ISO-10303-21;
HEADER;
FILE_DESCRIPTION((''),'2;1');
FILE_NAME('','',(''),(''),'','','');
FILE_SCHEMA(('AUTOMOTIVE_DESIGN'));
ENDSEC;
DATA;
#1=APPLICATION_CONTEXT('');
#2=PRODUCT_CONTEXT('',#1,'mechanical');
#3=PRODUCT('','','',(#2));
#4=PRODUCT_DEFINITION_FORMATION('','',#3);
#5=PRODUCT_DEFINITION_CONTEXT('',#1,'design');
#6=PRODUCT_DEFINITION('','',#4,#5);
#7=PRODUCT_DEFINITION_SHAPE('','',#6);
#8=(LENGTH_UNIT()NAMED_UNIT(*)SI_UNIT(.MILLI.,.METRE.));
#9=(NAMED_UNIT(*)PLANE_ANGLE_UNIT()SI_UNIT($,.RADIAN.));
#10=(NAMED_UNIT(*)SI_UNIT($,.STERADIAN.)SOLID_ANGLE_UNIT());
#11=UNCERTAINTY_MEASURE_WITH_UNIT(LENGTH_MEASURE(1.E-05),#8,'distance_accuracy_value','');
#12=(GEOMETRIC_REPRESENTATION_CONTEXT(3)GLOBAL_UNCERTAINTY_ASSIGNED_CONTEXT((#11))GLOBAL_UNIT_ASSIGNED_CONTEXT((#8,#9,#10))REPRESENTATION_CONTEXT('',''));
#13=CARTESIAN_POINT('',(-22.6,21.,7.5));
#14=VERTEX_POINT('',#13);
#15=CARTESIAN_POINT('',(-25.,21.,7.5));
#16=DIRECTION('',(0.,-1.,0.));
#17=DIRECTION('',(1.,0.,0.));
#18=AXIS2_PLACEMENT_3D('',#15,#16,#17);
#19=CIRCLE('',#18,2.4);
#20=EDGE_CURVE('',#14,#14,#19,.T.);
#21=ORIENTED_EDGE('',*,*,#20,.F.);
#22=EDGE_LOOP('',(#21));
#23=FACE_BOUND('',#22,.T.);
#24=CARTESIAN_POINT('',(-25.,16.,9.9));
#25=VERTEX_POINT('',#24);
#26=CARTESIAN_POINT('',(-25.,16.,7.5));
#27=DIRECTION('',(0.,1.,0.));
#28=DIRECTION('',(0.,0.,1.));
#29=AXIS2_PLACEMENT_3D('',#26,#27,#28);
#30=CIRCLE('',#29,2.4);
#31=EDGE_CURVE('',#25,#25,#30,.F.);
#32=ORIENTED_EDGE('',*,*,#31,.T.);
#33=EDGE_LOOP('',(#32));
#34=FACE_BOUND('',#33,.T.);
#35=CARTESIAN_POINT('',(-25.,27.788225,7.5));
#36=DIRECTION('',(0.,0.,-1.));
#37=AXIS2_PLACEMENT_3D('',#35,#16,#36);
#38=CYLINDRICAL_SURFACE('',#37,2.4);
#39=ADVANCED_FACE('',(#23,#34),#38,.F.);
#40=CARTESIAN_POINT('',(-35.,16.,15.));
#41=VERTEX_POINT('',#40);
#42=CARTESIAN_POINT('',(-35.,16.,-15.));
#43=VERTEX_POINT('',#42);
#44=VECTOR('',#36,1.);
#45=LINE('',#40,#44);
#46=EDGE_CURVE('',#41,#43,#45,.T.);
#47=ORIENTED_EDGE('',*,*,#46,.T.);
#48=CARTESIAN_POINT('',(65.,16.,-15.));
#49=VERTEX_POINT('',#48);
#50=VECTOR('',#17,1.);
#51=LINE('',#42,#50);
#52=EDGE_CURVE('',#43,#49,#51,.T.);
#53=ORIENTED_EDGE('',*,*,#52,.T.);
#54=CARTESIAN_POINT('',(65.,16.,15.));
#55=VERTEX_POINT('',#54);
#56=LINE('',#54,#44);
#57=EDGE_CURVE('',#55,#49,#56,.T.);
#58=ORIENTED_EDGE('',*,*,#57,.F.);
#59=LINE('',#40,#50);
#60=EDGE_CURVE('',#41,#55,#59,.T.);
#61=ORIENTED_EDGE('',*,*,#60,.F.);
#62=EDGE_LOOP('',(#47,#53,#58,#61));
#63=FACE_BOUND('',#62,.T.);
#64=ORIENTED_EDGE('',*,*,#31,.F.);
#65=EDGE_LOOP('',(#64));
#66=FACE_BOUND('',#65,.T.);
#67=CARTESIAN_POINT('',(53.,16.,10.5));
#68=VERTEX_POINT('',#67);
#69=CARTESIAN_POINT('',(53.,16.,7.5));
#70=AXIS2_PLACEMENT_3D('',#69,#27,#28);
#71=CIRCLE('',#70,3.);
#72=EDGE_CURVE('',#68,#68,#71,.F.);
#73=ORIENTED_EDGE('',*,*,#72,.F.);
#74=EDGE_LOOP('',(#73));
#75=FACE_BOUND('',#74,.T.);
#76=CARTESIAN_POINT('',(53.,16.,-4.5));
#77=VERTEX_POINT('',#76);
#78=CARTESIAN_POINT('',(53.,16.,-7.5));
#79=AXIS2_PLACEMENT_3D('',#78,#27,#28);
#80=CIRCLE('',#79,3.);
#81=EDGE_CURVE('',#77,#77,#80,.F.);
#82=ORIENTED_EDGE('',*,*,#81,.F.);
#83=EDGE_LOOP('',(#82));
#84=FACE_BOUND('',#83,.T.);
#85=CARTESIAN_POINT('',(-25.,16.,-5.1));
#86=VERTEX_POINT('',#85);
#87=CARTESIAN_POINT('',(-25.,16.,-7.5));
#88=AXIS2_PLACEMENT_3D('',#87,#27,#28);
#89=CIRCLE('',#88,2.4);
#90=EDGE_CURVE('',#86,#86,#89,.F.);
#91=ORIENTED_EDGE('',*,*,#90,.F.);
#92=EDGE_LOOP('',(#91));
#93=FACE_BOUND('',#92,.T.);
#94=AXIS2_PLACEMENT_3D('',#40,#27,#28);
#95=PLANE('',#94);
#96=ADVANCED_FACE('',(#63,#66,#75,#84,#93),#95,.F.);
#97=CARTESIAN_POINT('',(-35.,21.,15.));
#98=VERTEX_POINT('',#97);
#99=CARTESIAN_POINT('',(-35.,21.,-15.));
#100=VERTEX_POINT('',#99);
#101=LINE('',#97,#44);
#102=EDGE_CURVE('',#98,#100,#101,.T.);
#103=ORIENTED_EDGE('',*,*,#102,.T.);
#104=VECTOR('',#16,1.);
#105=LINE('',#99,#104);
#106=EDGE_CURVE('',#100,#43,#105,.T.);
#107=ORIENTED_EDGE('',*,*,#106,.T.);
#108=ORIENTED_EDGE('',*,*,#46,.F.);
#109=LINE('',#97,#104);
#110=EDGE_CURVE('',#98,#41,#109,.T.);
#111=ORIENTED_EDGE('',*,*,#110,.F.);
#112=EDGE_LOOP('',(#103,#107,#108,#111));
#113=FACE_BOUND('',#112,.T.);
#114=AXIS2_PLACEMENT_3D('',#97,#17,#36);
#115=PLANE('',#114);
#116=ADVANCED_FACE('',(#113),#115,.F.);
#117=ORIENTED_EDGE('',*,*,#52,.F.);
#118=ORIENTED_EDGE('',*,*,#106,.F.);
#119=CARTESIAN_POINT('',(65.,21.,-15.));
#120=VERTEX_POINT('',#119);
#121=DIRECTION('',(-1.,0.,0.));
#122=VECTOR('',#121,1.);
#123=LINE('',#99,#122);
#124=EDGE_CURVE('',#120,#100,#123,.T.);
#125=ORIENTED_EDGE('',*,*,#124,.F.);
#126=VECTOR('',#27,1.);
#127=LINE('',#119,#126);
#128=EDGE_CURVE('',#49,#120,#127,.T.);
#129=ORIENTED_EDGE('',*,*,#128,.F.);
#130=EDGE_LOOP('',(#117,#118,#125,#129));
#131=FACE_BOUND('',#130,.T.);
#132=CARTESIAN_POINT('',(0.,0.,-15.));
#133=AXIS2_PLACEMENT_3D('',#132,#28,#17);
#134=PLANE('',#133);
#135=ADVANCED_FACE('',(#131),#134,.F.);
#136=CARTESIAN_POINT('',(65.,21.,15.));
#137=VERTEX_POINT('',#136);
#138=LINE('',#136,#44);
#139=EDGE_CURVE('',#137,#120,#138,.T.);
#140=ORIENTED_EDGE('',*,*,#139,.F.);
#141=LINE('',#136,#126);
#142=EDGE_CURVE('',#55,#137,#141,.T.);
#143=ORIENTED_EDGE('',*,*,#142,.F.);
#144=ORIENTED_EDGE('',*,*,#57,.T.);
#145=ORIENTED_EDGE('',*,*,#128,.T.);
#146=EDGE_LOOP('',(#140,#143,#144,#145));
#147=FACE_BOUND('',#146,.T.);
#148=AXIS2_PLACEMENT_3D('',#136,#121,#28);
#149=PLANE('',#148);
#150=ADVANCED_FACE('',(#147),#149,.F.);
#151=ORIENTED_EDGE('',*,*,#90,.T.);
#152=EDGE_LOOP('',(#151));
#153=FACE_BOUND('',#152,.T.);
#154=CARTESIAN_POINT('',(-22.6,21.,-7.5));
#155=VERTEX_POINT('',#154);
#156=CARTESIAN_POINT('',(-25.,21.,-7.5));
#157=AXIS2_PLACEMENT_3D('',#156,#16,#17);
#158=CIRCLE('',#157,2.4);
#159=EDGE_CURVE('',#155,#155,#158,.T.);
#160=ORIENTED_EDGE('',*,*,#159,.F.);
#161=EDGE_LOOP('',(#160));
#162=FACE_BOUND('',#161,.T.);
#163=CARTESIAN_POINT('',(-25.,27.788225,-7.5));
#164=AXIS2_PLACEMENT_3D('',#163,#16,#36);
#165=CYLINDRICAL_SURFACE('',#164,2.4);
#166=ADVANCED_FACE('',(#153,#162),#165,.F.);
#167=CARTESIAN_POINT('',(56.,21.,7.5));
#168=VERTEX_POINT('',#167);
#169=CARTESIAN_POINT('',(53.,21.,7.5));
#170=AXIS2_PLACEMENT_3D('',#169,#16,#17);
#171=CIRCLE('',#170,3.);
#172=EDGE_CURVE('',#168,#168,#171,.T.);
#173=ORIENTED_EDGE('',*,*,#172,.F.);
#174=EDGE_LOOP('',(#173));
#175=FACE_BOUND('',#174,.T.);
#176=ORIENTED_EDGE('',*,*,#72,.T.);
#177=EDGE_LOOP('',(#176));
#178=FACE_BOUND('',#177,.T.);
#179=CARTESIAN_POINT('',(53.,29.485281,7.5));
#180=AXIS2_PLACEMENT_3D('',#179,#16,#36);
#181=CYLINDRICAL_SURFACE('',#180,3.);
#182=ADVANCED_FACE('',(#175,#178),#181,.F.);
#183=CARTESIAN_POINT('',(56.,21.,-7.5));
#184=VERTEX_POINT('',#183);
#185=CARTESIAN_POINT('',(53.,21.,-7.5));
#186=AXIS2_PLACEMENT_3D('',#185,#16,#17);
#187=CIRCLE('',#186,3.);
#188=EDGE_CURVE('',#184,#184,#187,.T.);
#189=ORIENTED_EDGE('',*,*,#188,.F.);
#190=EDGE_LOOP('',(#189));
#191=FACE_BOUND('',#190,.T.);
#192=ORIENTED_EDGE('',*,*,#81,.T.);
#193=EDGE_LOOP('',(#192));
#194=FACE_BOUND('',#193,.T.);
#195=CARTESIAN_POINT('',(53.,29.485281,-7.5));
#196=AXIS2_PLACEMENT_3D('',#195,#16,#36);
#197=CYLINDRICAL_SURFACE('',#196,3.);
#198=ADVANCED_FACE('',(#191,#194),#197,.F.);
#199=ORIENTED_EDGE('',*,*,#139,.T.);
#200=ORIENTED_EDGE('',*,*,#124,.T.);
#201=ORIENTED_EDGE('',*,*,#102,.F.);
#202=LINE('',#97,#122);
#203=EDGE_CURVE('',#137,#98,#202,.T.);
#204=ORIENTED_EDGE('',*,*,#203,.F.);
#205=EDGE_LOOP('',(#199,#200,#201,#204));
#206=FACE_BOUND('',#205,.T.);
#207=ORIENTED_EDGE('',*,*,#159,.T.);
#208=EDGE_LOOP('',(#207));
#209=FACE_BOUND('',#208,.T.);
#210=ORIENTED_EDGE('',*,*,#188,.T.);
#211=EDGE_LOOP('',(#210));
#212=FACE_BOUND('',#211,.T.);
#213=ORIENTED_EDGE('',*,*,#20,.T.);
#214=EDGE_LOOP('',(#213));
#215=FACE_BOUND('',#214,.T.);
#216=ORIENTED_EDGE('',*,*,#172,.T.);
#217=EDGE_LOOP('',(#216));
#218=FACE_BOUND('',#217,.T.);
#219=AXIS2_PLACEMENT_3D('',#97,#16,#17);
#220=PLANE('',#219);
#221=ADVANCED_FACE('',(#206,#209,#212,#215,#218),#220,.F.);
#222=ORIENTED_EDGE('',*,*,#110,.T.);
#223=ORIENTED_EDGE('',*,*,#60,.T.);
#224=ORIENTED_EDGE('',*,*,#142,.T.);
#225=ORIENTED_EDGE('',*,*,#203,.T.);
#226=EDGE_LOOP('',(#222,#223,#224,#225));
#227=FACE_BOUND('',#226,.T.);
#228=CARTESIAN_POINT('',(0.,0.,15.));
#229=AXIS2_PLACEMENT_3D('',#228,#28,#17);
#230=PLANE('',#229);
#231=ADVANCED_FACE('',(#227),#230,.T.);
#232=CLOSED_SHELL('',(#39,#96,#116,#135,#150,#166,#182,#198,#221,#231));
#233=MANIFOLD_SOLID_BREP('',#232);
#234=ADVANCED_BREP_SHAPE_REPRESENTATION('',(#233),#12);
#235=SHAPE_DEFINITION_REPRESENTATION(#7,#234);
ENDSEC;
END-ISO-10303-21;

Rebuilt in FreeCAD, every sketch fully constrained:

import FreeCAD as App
import Part
import Sketcher
from FreeCAD import Vector


def add_polygon(sketch, points):
    """Adds a closed chain of lines whose ends are joined by coincident constraints."""
    first, n = sketch.GeometryCount, len(points)
    for a, b in zip(points, points[1:] + points[:1]):
        sketch.addGeometry(Part.LineSegment(App.Vector(*a, 0), App.Vector(*b, 0)), False)
    for i in range(n):
        sketch.addConstraint(Sketcher.Constraint("Coincident", first + i, 2, first + (i + 1) % n, 1))

doc = App.newDocument("Part")
params = doc.addObject("Spreadsheet::Sheet", "Params")
for row, (alias, value) in enumerate([
    ("sketch1_width", "100 mm"),
    ("sketch1_height", "5 mm"),
    ("pad1_length", "15 mm"),
    ("pad1_length2", "15 mm"),
    ("sketch2_diameter", "6 mm"),
    ("pocket1_length", "21 mm"),
    ("sketch3_diameter", "4.8 mm"),
    ("pocket2_length", "21 mm"),
], start=1):
    params.set(f"A{row}", alias)
    params.set(f"B{row}", "=" + value)
    params.setAlias(f"B{row}", alias)

body = doc.addObject("PartDesign::Body", "Body")

# Sketch on XY plane
sketch1 = body.newObject("Sketcher::SketchObject", "Sketch")
sketch1.AttachmentSupport = (doc.getObject("XY_Plane"), [""])
sketch1.MapMode = "FlatFace"
add_polygon(sketch1, [(-35, 21), (-35, 16), (65, 16), (65, 21)])  # lines 0-3
sketch1.addConstraint(Sketcher.Constraint("Vertical", 0))
sketch1.addConstraint(Sketcher.Constraint("Horizontal", 1))
sketch1.addConstraint(Sketcher.Constraint("Vertical", 2))
sketch1.addConstraint(Sketcher.Constraint("Horizontal", 3))
sketch1.addConstraint(Sketcher.Constraint("DistanceX", 1, 1, 1, 2, 100.0))
sketch1.addConstraint(Sketcher.Constraint("DistanceY", 0, 2, 0, 1, 5.0))
sketch1.addConstraint(Sketcher.Constraint("DistanceX", 0, 2, -1, 1, 35.0))
sketch1.addConstraint(Sketcher.Constraint("DistanceY", -1, 1, 0, 2, 16.0))
sketch1.setExpression("Constraints[8]", "Params.sketch1_width")
sketch1.setExpression("Constraints[9]", "Params.sketch1_height")
pad1 = body.newObject("PartDesign::Pad", "Pad")
pad1.Profile = sketch1
pad1.Type = "TwoLengths"
pad1.setExpression("Length", "Params.pad1_length")
pad1.setExpression("Length2", "Params.pad1_length2")

# Sketch on XZ plane
sketch2 = body.newObject("Sketcher::SketchObject", "Sketch001")
sketch2.AttachmentSupport = (doc.getObject("XZ_Plane"), [""])
sketch2.MapMode = "FlatFace"
sketch2.addGeometry(Part.Circle(Vector(53, -7.5, 0), Vector(0, 0, 1), 3), False)
sketch2.addGeometry(Part.Circle(Vector(53, 7.5, 0), Vector(0, 0, 1), 3), False)
sketch2.addConstraint(Sketcher.Constraint("Equal", 0, 1))
sketch2.addConstraint(Sketcher.Constraint("Symmetric", 0, 3, 1, 3, -1))
sketch2.addConstraint(Sketcher.Constraint("Diameter", 0, 6.0))
sketch2.addConstraint(Sketcher.Constraint("DistanceX", -1, 1, 0, 3, 53.0))
sketch2.addConstraint(Sketcher.Constraint("DistanceY", 0, 3, 1, 3, 15.0))
sketch2.setExpression("Constraints[2]", "Params.sketch2_diameter")
pocket1 = body.newObject("PartDesign::Pocket", "Pocket")
pocket1.Profile = sketch2
pocket1.setExpression("Length", "Params.pocket1_length")

# Sketch on XZ plane
sketch3 = body.newObject("Sketcher::SketchObject", "Sketch002")
sketch3.AttachmentSupport = (doc.getObject("XZ_Plane"), [""])
sketch3.MapMode = "FlatFace"
sketch3.addGeometry(Part.Circle(Vector(-25, -7.5, 0), Vector(0, 0, 1), 2.4), False)
sketch3.addGeometry(Part.Circle(Vector(-25, 7.5, 0), Vector(0, 0, 1), 2.4), False)
sketch3.addConstraint(Sketcher.Constraint("Equal", 0, 1))
sketch3.addConstraint(Sketcher.Constraint("Symmetric", 0, 3, 1, 3, -1))
sketch3.addConstraint(Sketcher.Constraint("Diameter", 0, 4.8))
sketch3.addConstraint(Sketcher.Constraint("DistanceX", 0, 3, -1, 1, 25.0))
sketch3.addConstraint(Sketcher.Constraint("DistanceY", 0, 3, 1, 3, 15.0))
sketch3.setExpression("Constraints[2]", "Params.sketch3_diameter")
pocket2 = body.newObject("PartDesign::Pocket", "Pocket001")
pocket2.Profile = sketch3
pocket2.setExpression("Length", "Params.pocket2_length")

doc.recompute()
